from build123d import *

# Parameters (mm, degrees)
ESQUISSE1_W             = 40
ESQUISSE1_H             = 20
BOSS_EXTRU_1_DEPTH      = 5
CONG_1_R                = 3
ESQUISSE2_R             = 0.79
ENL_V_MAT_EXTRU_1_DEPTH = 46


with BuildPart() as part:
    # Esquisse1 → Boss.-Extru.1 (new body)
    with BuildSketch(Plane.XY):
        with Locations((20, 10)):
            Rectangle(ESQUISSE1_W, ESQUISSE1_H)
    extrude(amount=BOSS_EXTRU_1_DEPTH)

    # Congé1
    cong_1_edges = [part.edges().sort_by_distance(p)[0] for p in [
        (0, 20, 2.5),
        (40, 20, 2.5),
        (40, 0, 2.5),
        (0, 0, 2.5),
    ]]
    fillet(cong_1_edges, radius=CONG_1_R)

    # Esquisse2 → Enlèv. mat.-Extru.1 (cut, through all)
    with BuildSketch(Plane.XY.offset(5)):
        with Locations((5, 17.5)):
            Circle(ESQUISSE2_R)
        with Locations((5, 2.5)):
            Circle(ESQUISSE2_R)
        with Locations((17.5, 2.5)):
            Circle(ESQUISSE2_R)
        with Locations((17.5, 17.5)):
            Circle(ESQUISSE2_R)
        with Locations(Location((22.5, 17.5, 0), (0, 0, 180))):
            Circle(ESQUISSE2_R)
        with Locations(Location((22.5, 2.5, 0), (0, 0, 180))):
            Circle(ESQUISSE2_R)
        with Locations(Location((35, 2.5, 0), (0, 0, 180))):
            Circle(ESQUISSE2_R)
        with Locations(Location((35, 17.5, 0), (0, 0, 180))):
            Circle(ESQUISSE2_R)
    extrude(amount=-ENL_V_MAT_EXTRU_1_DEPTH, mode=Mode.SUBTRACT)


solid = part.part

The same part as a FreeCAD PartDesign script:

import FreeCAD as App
import Part
import Sketcher

V = App.Vector
Q = App.Units.Quantity


def edges_at(feature, points):
    """Names of the edges that pass closest to the given points."""
    edges = feature.Shape.Edges
    near = lambda p: min(range(len(edges)), key=lambda i: edges[i].distToShape(Part.Vertex(*p))[0])
    return sorted({f"Edge{near(p) + 1}" for p in points})

doc = App.newDocument("Part")
body = doc.addObject("PartDesign::Body", "Body")

# Sketch on XY plane
sketch1 = body.newObject("Sketcher::SketchObject", "Sketch")
sketch1.AttachmentSupport = (doc.getObject("XY_Plane"), [""])
sketch1.MapMode = "FlatFace"
sketch1.addGeometry([
    Part.LineSegment(V(0, 20, 0), V(0, 0, 0)),
    Part.LineSegment(V(0, 0, 0), V(40, 0, 0)),
    Part.LineSegment(V(40, 0, 0), V(40, 20, 0)),
    Part.LineSegment(V(40, 20, 0), V(0, 20, 0)),
], False)
sketch1.addConstraint([
    Sketcher.Constraint("Coincident", 0, 2, 1, 1),
    Sketcher.Constraint("Coincident", 1, 2, 2, 1),
    Sketcher.Constraint("Coincident", 2, 2, 3, 1),
    Sketcher.Constraint("Coincident", 3, 2, 0, 1),
    Sketcher.Constraint("Vertical", 0),
    Sketcher.Constraint("Horizontal", 1),
    Sketcher.Constraint("Vertical", 2),
    Sketcher.Constraint("Horizontal", 3),
    Sketcher.Constraint("Coincident", 0, 2, -1, 1),
    Sketcher.Constraint("DistanceX", 1, 1, 1, 2, Q("40 mm")),
    Sketcher.Constraint("DistanceY", 0, 2, 0, 1, Q("20 mm")),
])
pad1 = body.newObject("PartDesign::Pad", "Pad")
pad1.Profile = sketch1
pad1.Length = 5
doc.recompute()

fillet = body.newObject("PartDesign::Fillet", "Fillet")
fillet.Base = (pad1, edges_at(pad1, [
    (0, 20, 2.5),
    (40, 20, 2.5),
    (40, 0, 2.5),
    (0, 0, 2.5),
]))
fillet.Radius = 3

# Sketch on XY plane
sketch2 = body.newObject("Sketcher::SketchObject", "Sketch001")
sketch2.AttachmentSupport = (doc.getObject("XY_Plane"), [""])
sketch2.MapMode = "FlatFace"
sketch2.AttachmentOffset = App.Placement(V(0, 0, 5), App.Rotation())
sketch2.addGeometry([
    Part.Circle(V(5, 17.5, 0), V(0, 0, 1), 0.8),  # 0
    Part.Circle(V(5, 2.5, 0), V(0, 0, 1), 0.8),  # 1
    Part.Circle(V(17.5, 2.5, 0), V(0, 0, 1), 0.8),  # 2
    Part.Circle(V(17.5, 17.5, 0), V(0, 0, 1), 0.8),  # 3
    Part.Circle(V(22.5, 17.5, 0), V(0, 0, 1), 0.8),  # 4
    Part.Circle(V(22.5, 2.5, 0), V(0, 0, 1), 0.8),  # 5
    Part.Circle(V(35, 2.5, 0), V(0, 0, 1), 0.8),  # 6
    Part.Circle(V(35, 17.5, 0), V(0, 0, 1), 0.8),  # 7
], False)
sketch2.addConstraint([
    Sketcher.Constraint("Equal", 0, 1),
    Sketcher.Constraint("Equal", 1, 2),
    Sketcher.Constraint("Equal", 2, 3),
    Sketcher.Constraint("Equal", 3, 4),
    Sketcher.Constraint("Equal", 4, 5),
    Sketcher.Constraint("Equal", 5, 6),
    Sketcher.Constraint("Equal", 6, 7),
    Sketcher.Constraint("Horizontal", 1, 3, 2, 3),
    Sketcher.Constraint("Horizontal", 0, 3, 3, 3),
    Sketcher.Constraint("Horizontal", 3, 3, 4, 3),
    Sketcher.Constraint("Horizontal", 2, 3, 5, 3),
    Sketcher.Constraint("Horizontal", 5, 3, 6, 3),
    Sketcher.Constraint("Horizontal", 4, 3, 7, 3),
    Sketcher.Constraint("Vertical", 0, 3, 1, 3),
    Sketcher.Constraint("Vertical", 2, 3, 3, 3),
    Sketcher.Constraint("Vertical", 4, 3, 5, 3),
    Sketcher.Constraint("Vertical", 6, 3, 7, 3),
    Sketcher.Constraint("Diameter", 0, Q("1.58 mm")),
    Sketcher.Constraint("DistanceX", -1, 1, 0, 3, Q("5 mm")),
    Sketcher.Constraint("DistanceX", -1, 1, 6, 3, Q("35 mm")),
    Sketcher.Constraint("DistanceY", 1, 3, 0, 3, Q("15 mm")),
    Sketcher.Constraint("DistanceX", 3, 3, 4, 3, Q("5 mm")),
    Sketcher.Constraint("DistanceY", -1, 1, 0, 3, Q("17.5 mm")),
    Sketcher.Constraint("DistanceX", -1, 1, 2, 3, Q("17.5 mm")),
])
pocket1 = body.newObject("PartDesign::Pocket", "Pocket")
pocket1.Profile = sketch2
pocket1.Type = "ThroughAll"

doc.recompute()
